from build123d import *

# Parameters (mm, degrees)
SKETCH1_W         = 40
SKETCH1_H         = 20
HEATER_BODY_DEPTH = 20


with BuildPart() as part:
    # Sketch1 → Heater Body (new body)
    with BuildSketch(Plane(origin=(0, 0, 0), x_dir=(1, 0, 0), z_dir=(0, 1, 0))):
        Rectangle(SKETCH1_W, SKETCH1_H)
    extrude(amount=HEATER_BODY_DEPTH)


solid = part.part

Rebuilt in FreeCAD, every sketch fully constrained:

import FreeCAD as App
import Part
import Sketcher
Q = App.Units.Quantity

doc = App.newDocument("Part")
body = doc.addObject("PartDesign::Body", "Body")

sketch1 = body.newObject("Sketcher::SketchObject", "Sketch")
sketch1.AttachmentSupport = (doc.getObject("XZ_Plane"), [""])
sketch1.MapMode = "FlatFace"
sketch1.addGeometry([
    Part.LineSegment(App.Vector(-20, -10, 0), App.Vector(-20, 10, 0)),
    Part.LineSegment(App.Vector(-20, 10, 0), App.Vector(20, 10, 0)),
    Part.LineSegment(App.Vector(20, 10, 0), App.Vector(20, -10, 0)),
    Part.LineSegment(App.Vector(20, -10, 0), App.Vector(-20, -10, 0)),
], False)
sketch1.addConstraint([
    Sketcher.Constraint("Coincident", 0, 2, 1, 1),
    Sketcher.Constraint("Coincident", 1, 2, 2, 1),
    Sketcher.Constraint("Coincident", 2, 2, 3, 1),
    Sketcher.Constraint("Coincident", 3, 2, 0, 1),
    Sketcher.Constraint("Vertical", 0),
    Sketcher.Constraint("Horizontal", 1),
    Sketcher.Constraint("Vertical", 2),
    Sketcher.Constraint("Horizontal", 3),
    Sketcher.Constraint("Symmetric", 0, 2, 2, 2, -1, 1),
    Sketcher.Constraint("DistanceX", 1, 1, 1, 2, Q("40 mm")),
    Sketcher.Constraint("DistanceY", 0, 1, 0, 2, Q("20 mm")),
])
pad1 = body.newObject("PartDesign::Pad", "Pad")
pad1.Profile = sketch1
pad1.Length = 20
pad1.Reversed = True

doc.recompute()
